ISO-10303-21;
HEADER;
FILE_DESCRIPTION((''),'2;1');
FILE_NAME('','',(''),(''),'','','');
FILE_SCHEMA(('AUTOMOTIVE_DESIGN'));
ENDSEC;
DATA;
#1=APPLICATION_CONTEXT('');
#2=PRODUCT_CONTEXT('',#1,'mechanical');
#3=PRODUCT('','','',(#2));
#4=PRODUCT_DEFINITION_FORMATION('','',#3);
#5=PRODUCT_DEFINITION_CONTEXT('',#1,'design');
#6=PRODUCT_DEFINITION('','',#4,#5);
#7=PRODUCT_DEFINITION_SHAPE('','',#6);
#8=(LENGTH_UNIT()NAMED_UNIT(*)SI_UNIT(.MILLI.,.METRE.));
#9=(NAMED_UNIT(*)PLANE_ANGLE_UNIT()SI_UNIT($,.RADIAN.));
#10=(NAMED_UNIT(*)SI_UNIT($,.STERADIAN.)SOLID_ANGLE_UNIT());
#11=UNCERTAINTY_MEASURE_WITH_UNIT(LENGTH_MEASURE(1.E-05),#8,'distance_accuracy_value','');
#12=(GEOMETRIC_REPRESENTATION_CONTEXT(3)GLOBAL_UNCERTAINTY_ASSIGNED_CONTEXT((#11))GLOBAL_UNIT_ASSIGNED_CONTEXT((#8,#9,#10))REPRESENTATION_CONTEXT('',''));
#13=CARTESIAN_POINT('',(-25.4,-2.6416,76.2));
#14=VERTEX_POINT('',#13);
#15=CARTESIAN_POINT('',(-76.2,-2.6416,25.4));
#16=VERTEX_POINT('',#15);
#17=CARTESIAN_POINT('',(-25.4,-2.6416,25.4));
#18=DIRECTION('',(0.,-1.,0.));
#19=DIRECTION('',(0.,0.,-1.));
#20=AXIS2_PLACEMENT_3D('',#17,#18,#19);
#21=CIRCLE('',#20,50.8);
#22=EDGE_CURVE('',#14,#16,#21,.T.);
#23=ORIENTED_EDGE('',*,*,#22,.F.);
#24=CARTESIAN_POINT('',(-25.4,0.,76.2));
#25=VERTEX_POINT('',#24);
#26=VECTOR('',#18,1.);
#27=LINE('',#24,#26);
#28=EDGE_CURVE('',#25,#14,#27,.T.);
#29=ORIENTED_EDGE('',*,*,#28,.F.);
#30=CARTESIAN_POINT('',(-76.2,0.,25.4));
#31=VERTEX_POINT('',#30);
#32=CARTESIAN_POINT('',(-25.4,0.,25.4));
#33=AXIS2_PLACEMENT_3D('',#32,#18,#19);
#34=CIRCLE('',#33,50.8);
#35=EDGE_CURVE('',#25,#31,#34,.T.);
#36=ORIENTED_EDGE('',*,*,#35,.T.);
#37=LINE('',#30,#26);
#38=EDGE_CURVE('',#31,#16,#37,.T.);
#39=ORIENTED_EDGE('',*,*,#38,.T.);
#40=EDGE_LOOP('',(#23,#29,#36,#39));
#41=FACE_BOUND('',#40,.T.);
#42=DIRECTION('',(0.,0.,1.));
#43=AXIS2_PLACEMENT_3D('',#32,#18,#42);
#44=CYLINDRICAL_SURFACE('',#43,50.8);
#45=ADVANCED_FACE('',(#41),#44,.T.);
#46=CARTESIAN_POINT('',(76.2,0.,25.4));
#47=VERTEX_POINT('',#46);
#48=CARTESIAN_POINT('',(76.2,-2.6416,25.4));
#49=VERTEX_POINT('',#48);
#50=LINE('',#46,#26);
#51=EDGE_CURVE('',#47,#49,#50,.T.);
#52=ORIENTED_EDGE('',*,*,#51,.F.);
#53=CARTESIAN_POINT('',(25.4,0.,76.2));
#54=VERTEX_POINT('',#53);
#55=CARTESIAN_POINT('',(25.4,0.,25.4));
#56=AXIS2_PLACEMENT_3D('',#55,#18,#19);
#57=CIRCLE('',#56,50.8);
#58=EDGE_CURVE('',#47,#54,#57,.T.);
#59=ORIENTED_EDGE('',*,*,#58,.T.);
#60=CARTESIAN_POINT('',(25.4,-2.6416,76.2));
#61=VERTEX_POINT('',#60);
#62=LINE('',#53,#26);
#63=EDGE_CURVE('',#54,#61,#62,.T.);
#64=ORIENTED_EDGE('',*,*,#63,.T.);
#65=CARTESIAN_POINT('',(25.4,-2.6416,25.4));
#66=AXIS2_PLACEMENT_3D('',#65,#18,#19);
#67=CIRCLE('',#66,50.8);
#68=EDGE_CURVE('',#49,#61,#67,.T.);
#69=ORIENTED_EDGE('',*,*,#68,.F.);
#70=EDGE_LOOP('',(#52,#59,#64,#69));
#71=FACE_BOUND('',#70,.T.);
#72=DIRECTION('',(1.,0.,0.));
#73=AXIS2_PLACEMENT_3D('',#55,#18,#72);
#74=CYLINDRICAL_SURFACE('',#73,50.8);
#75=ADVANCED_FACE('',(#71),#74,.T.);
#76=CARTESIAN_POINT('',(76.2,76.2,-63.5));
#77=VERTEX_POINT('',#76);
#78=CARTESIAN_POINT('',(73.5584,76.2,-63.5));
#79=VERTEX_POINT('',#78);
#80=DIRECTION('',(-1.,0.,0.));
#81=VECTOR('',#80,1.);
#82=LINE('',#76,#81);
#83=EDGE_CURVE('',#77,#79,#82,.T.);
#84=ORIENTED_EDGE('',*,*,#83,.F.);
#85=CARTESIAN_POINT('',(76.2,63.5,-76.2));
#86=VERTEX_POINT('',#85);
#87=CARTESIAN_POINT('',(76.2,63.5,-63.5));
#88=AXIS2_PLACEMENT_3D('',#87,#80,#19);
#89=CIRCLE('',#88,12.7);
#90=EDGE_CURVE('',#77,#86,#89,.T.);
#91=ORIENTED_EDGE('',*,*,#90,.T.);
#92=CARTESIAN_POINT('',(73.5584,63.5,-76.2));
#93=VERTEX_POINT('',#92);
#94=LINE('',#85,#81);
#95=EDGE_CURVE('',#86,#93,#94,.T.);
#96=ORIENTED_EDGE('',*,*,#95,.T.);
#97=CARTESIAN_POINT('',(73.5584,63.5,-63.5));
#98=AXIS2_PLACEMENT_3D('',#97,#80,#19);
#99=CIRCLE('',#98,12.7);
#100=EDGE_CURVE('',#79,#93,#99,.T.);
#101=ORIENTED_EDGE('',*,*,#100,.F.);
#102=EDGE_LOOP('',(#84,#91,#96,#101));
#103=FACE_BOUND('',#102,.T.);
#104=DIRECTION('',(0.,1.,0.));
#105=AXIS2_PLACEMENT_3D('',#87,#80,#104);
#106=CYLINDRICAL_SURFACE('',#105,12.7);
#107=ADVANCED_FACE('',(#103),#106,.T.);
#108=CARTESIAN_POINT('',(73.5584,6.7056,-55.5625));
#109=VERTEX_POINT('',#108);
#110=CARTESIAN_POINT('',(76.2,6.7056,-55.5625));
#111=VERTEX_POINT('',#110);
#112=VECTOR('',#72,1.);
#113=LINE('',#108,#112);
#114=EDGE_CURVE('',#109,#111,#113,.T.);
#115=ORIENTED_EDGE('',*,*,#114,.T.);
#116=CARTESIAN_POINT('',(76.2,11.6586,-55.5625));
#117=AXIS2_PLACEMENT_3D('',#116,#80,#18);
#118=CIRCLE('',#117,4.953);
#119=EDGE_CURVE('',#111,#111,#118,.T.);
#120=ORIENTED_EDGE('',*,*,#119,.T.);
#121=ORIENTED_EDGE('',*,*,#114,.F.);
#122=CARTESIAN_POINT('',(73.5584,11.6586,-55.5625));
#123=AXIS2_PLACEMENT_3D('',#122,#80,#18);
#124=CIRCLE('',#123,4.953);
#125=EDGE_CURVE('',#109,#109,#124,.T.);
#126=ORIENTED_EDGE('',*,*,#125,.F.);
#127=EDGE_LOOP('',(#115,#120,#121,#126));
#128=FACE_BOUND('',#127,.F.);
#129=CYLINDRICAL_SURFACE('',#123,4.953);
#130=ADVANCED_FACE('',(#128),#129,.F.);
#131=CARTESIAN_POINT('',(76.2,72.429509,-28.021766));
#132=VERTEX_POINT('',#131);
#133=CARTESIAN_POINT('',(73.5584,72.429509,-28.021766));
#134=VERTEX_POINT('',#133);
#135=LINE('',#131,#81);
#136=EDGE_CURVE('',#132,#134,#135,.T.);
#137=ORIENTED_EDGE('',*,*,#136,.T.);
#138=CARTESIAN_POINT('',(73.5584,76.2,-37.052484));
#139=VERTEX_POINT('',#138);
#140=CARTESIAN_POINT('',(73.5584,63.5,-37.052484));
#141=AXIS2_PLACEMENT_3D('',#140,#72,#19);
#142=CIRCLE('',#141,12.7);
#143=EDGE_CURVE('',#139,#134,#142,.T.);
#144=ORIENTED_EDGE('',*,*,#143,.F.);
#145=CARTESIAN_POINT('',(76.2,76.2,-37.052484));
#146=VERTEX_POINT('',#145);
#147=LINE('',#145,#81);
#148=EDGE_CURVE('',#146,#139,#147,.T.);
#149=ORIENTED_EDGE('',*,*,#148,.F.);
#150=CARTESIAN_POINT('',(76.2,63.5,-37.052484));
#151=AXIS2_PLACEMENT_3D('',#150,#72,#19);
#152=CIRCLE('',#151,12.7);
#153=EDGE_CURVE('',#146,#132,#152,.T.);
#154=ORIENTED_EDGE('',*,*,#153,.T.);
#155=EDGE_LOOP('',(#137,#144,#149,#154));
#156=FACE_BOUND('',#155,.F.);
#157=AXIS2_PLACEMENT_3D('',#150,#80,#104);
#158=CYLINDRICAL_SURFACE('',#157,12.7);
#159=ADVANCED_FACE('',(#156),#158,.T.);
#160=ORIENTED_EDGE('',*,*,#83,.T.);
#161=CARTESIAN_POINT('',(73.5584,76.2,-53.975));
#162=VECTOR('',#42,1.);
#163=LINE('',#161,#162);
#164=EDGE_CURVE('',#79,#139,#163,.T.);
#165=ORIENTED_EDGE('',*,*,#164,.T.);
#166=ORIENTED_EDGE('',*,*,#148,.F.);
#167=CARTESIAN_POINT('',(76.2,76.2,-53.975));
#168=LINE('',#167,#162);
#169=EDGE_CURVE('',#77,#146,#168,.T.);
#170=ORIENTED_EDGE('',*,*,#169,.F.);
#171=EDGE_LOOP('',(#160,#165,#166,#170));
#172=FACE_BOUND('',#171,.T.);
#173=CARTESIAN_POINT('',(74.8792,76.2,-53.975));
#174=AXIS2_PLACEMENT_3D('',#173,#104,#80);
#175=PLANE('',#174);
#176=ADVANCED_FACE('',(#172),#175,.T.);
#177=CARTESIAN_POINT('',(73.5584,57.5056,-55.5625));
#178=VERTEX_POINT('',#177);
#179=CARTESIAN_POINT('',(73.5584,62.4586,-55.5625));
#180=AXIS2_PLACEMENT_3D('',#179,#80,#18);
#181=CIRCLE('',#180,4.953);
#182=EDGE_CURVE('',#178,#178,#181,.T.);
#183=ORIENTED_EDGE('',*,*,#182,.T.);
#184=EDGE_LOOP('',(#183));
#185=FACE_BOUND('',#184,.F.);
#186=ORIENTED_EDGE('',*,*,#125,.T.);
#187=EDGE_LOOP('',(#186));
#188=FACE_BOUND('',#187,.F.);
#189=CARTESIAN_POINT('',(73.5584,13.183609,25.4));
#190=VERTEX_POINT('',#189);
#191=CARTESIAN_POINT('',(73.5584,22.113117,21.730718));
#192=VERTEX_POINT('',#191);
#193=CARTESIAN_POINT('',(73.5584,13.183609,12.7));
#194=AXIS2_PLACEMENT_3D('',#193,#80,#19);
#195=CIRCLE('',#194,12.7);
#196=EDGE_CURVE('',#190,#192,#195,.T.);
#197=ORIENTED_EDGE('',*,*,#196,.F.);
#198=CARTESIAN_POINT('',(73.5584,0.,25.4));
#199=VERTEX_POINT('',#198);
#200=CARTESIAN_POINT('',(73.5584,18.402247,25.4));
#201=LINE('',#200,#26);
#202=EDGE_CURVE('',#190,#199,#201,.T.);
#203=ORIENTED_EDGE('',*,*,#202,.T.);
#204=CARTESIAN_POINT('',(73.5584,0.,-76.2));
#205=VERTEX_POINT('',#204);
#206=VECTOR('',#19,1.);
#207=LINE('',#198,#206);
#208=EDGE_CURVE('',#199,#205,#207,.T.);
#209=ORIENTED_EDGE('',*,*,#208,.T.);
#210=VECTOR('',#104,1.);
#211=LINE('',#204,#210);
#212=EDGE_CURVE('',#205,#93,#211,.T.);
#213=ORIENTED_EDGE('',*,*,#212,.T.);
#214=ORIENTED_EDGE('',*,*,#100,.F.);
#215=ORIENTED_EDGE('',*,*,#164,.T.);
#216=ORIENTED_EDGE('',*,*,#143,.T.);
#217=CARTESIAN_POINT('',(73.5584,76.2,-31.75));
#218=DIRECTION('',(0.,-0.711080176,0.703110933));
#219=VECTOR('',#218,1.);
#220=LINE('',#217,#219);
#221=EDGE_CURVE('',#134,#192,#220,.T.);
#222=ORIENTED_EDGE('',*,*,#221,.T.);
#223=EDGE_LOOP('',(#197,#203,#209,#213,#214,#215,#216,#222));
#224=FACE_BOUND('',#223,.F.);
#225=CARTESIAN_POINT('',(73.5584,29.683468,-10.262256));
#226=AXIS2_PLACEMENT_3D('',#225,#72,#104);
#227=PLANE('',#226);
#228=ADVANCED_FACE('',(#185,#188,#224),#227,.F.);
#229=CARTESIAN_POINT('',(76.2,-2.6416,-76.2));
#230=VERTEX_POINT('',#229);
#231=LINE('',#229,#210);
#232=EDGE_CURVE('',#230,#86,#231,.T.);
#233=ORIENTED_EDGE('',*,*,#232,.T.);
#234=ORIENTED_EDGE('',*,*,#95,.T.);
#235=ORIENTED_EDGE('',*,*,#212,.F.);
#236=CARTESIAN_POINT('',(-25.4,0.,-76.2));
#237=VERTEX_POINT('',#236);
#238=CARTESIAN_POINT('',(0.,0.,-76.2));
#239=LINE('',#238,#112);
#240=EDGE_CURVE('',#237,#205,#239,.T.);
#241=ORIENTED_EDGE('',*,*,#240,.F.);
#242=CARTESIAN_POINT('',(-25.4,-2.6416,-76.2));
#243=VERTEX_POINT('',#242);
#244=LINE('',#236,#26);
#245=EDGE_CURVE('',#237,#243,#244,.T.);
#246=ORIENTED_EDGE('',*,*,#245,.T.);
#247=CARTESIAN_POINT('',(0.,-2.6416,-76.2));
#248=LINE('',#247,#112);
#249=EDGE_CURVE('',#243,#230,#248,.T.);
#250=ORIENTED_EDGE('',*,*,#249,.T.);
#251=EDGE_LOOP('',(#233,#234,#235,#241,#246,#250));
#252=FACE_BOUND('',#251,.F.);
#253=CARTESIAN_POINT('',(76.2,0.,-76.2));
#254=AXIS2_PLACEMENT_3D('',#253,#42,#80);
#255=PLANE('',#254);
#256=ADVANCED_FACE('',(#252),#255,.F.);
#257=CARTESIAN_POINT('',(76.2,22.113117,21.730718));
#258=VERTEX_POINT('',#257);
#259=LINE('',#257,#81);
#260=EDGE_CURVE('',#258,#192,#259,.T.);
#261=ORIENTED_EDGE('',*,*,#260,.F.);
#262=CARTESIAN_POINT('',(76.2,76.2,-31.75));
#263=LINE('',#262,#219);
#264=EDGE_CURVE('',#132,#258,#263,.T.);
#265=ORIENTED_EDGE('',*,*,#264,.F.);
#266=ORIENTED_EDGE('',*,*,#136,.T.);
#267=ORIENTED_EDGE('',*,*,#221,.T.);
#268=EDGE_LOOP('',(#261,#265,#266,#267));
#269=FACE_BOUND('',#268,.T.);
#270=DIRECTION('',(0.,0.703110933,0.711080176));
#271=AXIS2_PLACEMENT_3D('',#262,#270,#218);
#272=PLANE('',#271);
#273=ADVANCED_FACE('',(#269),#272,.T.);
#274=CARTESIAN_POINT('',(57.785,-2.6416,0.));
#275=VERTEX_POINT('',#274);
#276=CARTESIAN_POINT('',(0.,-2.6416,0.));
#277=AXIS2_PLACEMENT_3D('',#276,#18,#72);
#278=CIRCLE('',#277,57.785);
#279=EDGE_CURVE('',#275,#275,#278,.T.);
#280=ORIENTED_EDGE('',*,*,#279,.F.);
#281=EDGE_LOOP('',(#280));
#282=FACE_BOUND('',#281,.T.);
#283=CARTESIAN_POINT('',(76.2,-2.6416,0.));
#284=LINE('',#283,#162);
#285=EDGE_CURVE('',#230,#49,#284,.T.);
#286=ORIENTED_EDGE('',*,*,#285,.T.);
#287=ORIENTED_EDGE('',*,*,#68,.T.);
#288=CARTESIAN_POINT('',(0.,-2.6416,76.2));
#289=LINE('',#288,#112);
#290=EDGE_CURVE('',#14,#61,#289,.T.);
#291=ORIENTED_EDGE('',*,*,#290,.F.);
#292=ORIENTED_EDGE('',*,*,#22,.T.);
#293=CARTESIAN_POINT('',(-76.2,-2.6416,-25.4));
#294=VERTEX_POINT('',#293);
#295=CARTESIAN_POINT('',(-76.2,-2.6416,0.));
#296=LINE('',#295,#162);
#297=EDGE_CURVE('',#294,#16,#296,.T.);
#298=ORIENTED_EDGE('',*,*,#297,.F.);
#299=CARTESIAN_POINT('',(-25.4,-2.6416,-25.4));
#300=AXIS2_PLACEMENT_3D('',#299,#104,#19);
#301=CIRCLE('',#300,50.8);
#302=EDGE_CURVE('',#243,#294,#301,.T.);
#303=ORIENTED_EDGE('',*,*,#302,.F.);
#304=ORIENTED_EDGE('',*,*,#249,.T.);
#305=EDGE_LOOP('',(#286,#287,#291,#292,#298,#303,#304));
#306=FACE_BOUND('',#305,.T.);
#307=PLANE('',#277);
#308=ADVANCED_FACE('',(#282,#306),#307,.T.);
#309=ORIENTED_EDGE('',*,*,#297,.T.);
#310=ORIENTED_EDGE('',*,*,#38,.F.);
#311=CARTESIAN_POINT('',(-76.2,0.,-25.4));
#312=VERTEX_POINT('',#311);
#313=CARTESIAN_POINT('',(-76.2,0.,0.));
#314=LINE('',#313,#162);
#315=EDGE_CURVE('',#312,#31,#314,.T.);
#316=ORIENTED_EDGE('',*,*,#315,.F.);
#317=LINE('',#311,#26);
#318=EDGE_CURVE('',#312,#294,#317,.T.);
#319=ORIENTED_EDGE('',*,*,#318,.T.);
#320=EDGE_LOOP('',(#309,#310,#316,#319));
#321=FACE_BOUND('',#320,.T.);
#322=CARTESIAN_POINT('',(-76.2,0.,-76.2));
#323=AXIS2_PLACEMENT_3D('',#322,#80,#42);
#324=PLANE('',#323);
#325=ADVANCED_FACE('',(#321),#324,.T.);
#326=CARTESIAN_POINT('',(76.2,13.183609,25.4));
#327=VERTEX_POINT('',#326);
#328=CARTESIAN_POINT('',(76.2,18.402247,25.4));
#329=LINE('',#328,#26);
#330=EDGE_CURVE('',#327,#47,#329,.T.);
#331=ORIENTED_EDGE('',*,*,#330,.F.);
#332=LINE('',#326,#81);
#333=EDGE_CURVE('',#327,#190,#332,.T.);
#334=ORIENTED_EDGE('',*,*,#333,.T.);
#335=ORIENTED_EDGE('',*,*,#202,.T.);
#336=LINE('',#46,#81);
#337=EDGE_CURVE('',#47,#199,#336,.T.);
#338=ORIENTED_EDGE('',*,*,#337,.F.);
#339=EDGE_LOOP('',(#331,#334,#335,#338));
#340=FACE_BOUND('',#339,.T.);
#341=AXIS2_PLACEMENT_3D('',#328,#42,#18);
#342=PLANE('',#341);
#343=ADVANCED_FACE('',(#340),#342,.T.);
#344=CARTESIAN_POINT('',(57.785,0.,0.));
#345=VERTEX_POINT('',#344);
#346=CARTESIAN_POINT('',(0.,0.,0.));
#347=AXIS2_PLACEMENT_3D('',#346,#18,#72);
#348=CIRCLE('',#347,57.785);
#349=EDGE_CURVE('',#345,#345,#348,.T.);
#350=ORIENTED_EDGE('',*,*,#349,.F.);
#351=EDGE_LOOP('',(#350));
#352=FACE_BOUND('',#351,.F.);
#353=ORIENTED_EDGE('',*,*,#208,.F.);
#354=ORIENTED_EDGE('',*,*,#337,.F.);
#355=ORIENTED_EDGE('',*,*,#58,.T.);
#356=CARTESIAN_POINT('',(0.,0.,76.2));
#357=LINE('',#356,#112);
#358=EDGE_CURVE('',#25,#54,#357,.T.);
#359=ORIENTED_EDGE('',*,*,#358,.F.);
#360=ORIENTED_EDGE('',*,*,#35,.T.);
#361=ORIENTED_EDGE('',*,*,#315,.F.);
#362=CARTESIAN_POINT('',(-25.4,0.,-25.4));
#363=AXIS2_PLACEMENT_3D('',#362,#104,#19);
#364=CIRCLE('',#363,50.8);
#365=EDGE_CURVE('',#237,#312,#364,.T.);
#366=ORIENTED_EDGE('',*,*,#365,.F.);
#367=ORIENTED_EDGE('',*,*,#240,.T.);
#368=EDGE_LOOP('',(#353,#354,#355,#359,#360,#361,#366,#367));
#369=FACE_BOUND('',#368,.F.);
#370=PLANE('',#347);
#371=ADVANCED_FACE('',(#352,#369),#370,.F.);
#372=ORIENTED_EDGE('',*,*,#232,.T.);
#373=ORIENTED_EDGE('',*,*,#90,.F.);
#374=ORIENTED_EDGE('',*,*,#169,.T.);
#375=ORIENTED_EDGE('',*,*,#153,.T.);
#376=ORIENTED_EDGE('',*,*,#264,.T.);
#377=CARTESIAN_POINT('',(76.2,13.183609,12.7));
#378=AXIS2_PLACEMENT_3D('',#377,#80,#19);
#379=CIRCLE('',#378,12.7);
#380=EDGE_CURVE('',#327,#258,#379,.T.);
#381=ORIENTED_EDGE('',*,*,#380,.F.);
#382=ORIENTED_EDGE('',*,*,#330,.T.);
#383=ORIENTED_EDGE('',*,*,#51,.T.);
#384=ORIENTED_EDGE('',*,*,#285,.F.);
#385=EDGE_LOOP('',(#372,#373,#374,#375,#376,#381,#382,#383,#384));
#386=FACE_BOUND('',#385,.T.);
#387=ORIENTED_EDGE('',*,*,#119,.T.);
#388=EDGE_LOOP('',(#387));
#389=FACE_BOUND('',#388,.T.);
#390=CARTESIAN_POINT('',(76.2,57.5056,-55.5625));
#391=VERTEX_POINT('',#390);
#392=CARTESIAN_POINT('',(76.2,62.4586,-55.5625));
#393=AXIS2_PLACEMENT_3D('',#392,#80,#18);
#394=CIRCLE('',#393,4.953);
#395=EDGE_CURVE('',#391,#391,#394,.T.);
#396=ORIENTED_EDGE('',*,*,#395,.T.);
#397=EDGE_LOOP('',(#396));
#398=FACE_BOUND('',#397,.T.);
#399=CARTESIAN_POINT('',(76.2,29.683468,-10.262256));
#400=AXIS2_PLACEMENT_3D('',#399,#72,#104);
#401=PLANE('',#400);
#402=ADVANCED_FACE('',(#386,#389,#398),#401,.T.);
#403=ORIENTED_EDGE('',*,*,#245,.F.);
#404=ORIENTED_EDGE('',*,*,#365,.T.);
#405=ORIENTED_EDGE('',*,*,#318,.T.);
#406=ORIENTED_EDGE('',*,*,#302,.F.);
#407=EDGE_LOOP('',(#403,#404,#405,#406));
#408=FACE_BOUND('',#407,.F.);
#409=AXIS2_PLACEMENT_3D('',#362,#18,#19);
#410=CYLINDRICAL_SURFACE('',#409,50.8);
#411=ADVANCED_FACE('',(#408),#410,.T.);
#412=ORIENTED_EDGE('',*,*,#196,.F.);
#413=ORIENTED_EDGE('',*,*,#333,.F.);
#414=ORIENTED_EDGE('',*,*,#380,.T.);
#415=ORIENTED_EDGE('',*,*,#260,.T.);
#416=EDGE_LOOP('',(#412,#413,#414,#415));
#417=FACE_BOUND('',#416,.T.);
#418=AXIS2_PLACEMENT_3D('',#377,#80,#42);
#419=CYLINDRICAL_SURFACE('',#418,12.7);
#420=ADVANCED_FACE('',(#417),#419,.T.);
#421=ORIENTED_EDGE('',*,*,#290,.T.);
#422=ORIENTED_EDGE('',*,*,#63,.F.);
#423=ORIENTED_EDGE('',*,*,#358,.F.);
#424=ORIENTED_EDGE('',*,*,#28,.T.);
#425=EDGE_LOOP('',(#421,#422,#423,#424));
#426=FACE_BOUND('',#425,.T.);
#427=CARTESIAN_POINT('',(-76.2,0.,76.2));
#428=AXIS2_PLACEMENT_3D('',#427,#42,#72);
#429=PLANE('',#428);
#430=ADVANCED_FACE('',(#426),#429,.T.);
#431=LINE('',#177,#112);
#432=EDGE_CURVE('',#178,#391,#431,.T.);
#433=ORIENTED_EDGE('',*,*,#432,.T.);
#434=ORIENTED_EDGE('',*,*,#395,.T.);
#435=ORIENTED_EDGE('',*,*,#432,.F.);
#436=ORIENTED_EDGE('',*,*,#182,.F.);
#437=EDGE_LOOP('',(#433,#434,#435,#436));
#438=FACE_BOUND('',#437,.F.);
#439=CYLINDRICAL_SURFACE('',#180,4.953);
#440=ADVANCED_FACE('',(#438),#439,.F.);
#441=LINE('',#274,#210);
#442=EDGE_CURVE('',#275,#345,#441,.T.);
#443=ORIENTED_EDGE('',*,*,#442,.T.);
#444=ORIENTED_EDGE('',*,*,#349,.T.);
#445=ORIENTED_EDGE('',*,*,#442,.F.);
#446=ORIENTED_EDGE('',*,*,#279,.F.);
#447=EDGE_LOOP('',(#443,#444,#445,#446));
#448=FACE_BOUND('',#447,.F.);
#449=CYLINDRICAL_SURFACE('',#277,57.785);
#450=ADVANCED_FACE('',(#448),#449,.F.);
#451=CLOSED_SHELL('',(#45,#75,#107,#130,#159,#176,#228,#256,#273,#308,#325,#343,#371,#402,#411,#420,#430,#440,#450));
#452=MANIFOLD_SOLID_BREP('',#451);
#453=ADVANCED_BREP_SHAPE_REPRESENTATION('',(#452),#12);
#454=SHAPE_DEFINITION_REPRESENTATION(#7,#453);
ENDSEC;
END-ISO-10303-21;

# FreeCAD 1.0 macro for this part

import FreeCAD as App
import Part
import Sketcher
from FreeCAD import Vector
Q = App.Units.Quantity


def edges_at(feature, points):
    """Names of the edges that pass closest to the given points."""
    edges = feature.Shape.Edges
    near = lambda p: min(range(len(edges)), key=lambda i: edges[i].distToShape(Part.Vertex(*p))[0])
    return sorted({f"Edge{near(p) + 1}" for p in points})


def add_polygon(sketch, points):
    """Adds a closed chain of lines whose ends are joined by coincident constraints."""
    first, n = sketch.GeometryCount, len(points)
    for a, b in zip(points, points[1:] + points[:1]):
        sketch.addGeometry(Part.LineSegment(App.Vector(*a, 0), App.Vector(*b, 0)), False)
    for i in range(n):
        sketch.addConstraint(Sketcher.Constraint("Coincident", first + i, 2, first + (i + 1) % n, 1))

doc = App.newDocument("Part")
body = doc.addObject("PartDesign::Body", "Body")

sketch1 = body.newObject("Sketcher::SketchObject", "Sketch")
sketch1.AttachmentSupport = (doc.getObject("XZ_Plane"), [""])
sketch1.MapMode = "FlatFace"
add_polygon(sketch1, [(-76.2, 76.2), (-76.2, -76.2), (76.2, -76.2), (76.2, 76.2)])
sketch1.addConstraint([
    Sketcher.Constraint("Vertical", 0),
    Sketcher.Constraint("Horizontal", 1),
    Sketcher.Constraint("Vertical", 2),
    Sketcher.Constraint("Horizontal", 3),
    Sketcher.Constraint("Symmetric", 0, 2, 2, 2, -1, 1),
    Sketcher.Constraint("Equal", 3, 0),
    Sketcher.Constraint("DistanceX", 1, 1, 1, 2, Q("6 in")),
])
pad1 = body.newObject("PartDesign::Pad", "Pad")
pad1.Profile = sketch1
pad1.Length = Q("0.104 in")

sketch2 = body.newObject("Sketcher::SketchObject", "Sketch001")
sketch2.AttachmentSupport = (doc.getObject("XZ_Plane"), [""])
sketch2.MapMode = "FlatFace"
add_polygon(sketch2, [(76.2, -31.75), (76.2, -76.2), (73.5584, -76.2), (73.5584, -31.75)])
sketch2.addConstraint([
    Sketcher.Constraint("Vertical", 0),
    Sketcher.Constraint("Horizontal", 1),
    Sketcher.Constraint("Vertical", 2),
    Sketcher.Constraint("Horizontal", 3),
    Sketcher.Constraint("DistanceX", -1, 1, 0, 2, Q("3 in")),
    Sketcher.Constraint("DistanceY", 0, 2, -1, 1, Q("3 in")),
    Sketcher.Constraint("DistanceY", 0, 2, 0, 1, Q("1.75 in")),
    Sketcher.Constraint("DistanceX", 1, 2, 1, 1, Q("0.104 in")),
])
pad2 = body.newObject("PartDesign::Pad", "Pad001")
pad2.Profile = sketch2
pad2.Length = Q("3 in")
pad2.Reversed = True

sketch3 = body.newObject("Sketcher::SketchObject", "Sketch002")
sketch3.AttachmentSupport = (doc.getObject("XZ_Plane"), [""])
sketch3.MapMode = "FlatFace"
sketch3.AttachmentOffset = App.Placement(Vector(0, 0, 0.104 * 25.4), App.Rotation())
sketch3.addGeometry(Part.Circle(Vector(0, 0, 0), Vector(0, 0, 1), 57.785), False)
sketch3.addConstraint([
    Sketcher.Constraint("Coincident", 0, 3, -1, 1),
    Sketcher.Constraint("Diameter", 0, Q("4.55 in")),
])
pocket1 = body.newObject("PartDesign::Pocket", "Pocket")
pocket1.Profile = sketch3
pocket1.Length = Q("1 in")
doc.recompute()

fillet = body.newObject("PartDesign::Fillet", "Fillet")
fillet.Base = (pocket1, edges_at(pocket1, [(76.2, -1.321, 76.2), (-76.2, -1.321, 76.2), (-76.2, -1.321, -76.2)]))
fillet.Radius = Q("2 in")

sketch4 = body.newObject("Sketcher::SketchObject", "Sketch003")
sketch4.AttachmentSupport = (doc.getObject("YZ_Plane"), [""])
sketch4.MapMode = "FlatFace"
sketch4.AttachmentOffset = App.Placement(Vector(0, 0, 2.896 * 25.4), App.Rotation())
sketch4.addGeometry([
    Part.Circle(Vector(11.6586, -55.5625, 0), Vector(0, 0, 1), 4.953),
    Part.Circle(Vector(62.4586, -55.5625, 0), Vector(0, 0, 1), 4.953),
], False)
sketch4.addConstraint([
    Sketcher.Constraint("Equal", 0, 1),
    Sketcher.Constraint("Horizontal", 0, 3, 1, 3),
    Sketcher.Constraint("Diameter", 0, Q("0.39 in")),
    Sketcher.Constraint("DistanceX", 0, 3, 1, 3, Q("2 in")),
    Sketcher.Constraint("DistanceX", -1, 1, 0, 3, Q("0.459 in")),
    Sketcher.Constraint("DistanceY", 0, 3, -1, 1, Q("2.1875 in")),
])
pocket2 = body.newObject("PartDesign::Pocket", "Pocket001")
pocket2.Profile = sketch4
pocket2.Length = Q("1 in")
pocket2.Reversed = True

sketch5 = body.newObject("Sketcher::SketchObject", "Sketch004")
sketch5.AttachmentSupport = (doc.getObject("YZ_Plane"), [""])
sketch5.MapMode = "FlatFace"
sketch5.AttachmentOffset = App.Placement(Vector(0, 0, 3 * 25.4), App.Rotation())
add_polygon(sketch5, [(18.402247, 25.4), (0, 25.4), (0, -31.75), (76.2, -31.75)])
sketch5.addConstraint([
    Sketcher.Constraint("Horizontal", 0),
    Sketcher.Constraint("Vertical", 1),
    Sketcher.Constraint("Horizontal", 2),
    Sketcher.Constraint("PointOnObject", 0, 2, -2),
    Sketcher.Constraint("DistanceX", 2, 1, 2, 2, Q("3 in")),
    Sketcher.Constraint("DistanceY", -1, 1, 0, 2, Q("1 in")),
    Sketcher.Constraint("DistanceY", 1, 2, 1, 1, Q("2.25 in")),
    Sketcher.Constraint("DistanceX", 0, 2, 0, 1, Q("18.402247 mm")),
])
pad3 = body.newObject("PartDesign::Pad", "Pad002")
pad3.Profile = sketch5
pad3.Length = Q("0.104 in")
pad3.Reversed = True
doc.recompute()

fillet2 = body.newObject("PartDesign::Fillet", "Fillet001")
fillet2.Base = (pad3, edges_at(pad3, [(74.879, 76.2, -76.2), (74.879, 76.2, -31.75), (74.879, 18.402, 25.4)]))
fillet2.Radius = Q("0.5 in")

doc.recompute()
